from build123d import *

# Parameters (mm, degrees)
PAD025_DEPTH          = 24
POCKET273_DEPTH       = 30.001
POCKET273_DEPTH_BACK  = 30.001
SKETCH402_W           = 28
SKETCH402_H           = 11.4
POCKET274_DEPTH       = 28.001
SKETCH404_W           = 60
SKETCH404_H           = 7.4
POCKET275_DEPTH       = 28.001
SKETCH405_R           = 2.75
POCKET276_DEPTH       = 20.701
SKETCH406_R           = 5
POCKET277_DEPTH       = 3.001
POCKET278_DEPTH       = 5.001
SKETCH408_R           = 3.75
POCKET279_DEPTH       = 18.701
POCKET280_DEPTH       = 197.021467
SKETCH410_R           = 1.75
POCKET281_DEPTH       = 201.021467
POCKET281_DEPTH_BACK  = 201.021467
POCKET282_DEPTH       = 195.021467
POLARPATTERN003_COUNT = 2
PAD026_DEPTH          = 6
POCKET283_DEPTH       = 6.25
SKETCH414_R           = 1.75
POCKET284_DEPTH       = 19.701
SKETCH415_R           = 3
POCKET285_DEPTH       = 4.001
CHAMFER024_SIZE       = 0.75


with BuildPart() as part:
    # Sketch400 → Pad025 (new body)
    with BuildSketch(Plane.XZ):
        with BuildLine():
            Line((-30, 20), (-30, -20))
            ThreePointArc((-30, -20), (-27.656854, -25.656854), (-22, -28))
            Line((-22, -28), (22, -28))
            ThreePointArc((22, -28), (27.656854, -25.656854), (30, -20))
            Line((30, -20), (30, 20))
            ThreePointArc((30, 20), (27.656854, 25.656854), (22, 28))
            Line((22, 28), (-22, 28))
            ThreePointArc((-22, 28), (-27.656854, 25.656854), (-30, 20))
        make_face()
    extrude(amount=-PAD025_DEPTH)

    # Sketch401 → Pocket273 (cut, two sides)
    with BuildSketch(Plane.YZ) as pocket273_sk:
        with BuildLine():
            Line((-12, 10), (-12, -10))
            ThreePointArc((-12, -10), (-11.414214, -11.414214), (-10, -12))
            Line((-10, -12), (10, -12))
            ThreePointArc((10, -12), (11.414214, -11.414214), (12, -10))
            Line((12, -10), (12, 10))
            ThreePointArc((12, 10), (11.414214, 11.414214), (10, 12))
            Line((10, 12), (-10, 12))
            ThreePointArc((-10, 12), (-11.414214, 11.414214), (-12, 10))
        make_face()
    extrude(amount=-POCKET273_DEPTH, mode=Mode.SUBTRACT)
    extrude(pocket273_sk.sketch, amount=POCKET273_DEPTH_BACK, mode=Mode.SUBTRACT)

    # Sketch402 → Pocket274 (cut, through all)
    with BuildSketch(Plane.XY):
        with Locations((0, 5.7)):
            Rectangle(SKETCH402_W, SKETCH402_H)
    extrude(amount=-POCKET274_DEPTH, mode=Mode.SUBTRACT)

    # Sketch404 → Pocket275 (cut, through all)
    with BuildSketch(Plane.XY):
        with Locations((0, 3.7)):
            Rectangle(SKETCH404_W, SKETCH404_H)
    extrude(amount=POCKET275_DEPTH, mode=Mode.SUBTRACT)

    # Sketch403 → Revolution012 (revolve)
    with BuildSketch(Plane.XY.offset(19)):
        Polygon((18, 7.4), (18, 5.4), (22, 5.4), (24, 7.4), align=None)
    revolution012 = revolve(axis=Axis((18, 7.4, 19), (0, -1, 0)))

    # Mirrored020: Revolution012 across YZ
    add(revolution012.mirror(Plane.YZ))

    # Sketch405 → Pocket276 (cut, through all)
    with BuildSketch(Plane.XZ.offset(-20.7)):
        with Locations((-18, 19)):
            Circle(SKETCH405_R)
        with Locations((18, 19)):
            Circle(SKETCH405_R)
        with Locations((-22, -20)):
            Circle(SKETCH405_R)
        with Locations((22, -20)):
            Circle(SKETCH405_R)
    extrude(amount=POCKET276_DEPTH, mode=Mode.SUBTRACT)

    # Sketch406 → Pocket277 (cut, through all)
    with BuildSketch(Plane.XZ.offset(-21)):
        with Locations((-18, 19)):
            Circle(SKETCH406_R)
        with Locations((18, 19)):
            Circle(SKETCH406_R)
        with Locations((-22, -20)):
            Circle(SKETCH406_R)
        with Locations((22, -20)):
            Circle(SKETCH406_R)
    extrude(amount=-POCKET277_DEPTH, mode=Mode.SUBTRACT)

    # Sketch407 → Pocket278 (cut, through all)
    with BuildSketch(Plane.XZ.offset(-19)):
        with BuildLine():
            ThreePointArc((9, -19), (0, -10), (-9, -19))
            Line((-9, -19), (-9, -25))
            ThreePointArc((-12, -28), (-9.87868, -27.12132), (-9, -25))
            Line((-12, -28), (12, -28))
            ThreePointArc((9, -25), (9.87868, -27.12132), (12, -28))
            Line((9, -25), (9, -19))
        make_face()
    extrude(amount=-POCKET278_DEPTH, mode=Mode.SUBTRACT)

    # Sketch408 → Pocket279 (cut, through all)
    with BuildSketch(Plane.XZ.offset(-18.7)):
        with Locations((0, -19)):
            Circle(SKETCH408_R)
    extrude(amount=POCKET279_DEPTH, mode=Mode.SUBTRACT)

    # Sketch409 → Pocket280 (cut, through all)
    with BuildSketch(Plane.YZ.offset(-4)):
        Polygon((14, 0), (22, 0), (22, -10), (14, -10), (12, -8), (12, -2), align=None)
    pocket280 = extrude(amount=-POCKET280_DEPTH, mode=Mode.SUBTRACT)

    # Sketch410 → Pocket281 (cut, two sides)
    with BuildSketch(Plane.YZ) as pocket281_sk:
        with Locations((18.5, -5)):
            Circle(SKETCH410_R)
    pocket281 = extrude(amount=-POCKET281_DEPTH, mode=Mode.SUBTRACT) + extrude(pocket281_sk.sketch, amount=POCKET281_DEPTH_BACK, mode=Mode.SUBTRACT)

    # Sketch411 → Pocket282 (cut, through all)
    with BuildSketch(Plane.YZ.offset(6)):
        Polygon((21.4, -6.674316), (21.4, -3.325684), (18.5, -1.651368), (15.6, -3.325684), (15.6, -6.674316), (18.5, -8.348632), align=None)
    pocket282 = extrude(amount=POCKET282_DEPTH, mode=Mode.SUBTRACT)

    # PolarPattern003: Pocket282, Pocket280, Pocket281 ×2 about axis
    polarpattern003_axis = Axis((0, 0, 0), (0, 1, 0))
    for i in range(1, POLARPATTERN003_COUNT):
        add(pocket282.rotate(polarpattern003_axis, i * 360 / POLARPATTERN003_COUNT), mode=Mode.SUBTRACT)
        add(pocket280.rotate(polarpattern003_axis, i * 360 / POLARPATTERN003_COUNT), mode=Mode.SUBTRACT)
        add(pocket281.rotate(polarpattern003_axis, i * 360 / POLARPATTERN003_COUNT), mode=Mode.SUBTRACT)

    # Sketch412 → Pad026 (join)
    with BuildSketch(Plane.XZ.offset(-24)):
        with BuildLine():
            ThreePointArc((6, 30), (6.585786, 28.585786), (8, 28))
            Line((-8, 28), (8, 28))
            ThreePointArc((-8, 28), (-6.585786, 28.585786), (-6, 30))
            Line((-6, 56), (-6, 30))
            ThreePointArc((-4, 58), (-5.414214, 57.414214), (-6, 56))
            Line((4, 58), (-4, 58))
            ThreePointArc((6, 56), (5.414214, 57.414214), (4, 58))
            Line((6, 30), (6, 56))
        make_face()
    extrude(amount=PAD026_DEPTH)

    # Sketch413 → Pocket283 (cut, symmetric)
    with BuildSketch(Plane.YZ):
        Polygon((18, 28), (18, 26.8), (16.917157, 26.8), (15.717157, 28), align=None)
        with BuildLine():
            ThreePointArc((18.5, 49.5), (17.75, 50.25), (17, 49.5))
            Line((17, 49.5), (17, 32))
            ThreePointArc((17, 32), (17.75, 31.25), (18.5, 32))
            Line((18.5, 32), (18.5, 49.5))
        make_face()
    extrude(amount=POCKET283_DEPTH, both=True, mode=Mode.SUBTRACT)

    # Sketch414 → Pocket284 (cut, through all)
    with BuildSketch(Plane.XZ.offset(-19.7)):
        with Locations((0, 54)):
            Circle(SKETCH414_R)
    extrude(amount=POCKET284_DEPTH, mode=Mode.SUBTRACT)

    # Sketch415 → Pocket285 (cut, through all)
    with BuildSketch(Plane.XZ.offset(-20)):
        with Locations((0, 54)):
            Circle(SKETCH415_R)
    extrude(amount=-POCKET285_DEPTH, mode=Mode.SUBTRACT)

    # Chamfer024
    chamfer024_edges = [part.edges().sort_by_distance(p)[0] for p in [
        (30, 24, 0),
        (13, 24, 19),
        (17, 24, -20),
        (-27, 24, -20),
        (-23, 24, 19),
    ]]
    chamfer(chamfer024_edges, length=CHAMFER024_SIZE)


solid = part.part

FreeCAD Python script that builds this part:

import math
import FreeCAD as App
import Part
import Sketcher
from FreeCAD import Vector
Q = App.Units.Quantity


def edges_at(feature, points):
    """Names of the edges that pass closest to the given points."""
    edges = feature.Shape.Edges
    near = lambda p: min(range(len(edges)), key=lambda i: edges[i].distToShape(Part.Vertex(*p))[0])
    return sorted({f"Edge{near(p) + 1}" for p in points})

doc = App.newDocument("Part")
params = doc.addObject("Spreadsheet::Sheet", "Params")
for row, (alias, value) in enumerate([
    ("sketch1_radius", "8.000001 mm"),
    ("sketch1_width", "44 mm"),
    ("sketch1_height", "40 mm"),
    ("pad1_length", "24 mm"),
    ("sketch2_radius", "1.999999 mm"),
    ("sketch2_width", "20 mm"),
    ("sketch3_width", "28 mm"),
    ("sketch3_height", "11.4 mm"),
    ("sketch4_width", "60 mm"),
    ("sketch4_height", "7.4 mm"),
    ("sketch5_width", "4 mm"),
    ("sketch5_width2", "6 mm"),
    ("sketch5_height", "2 mm"),
    ("revolution_angle", "360 deg"),
    ("sketch6_diameter", "5.5 mm"),
    ("sketch7_diameter", "10 mm"),
    ("sketch8_radius", "9 mm"),
    ("sketch8_radius2", "3.000001 mm"),
    ("sketch8_height", "6 mm"),
    ("sketch9_diameter", "7.5 mm"),
    ("sketch10_width", "8 mm"),
    ("sketch10_height", "6 mm"),
    ("sketch10_height2", "10 mm"),
    ("sketch11_diameter", "3.5 mm"),
    ("sketch13_radius", "1.999999 mm"),
    ("sketch13_width", "8 mm"),
    ("sketch13_height", "26 mm"),
    ("pad2_length", "6 mm"),
    ("sketch14_radius", "0.75 mm"),
    ("sketch14_height", "1.2 mm"),
    ("sketch14_height2", "17.5 mm"),
    ("pocket11_length", "12.5 mm"),
    ("sketch15_diameter", "3.5 mm"),
    ("sketch16_diameter", "6 mm"),
    ("chamfer_size", "0.75 mm"),
], start=1):
    params.set(f"A{row}", alias)
    params.set(f"B{row}", "=" + value)
    params.setAlias(f"B{row}", alias)

body = doc.addObject("PartDesign::Body", "Body")

sketch1 = body.newObject("Sketcher::SketchObject", "Sketch")
sketch1.AttachmentSupport = (doc.getObject("XZ_Plane"), [""])
sketch1.MapMode = "FlatFace"
sketch1.addGeometry([
    Part.LineSegment(Vector(-30, 20, 0), Vector(-30, -20, 0)),
    Part.ArcOfCircle(Part.Circle(Vector(-22, -20, 0), Vector(0, 0, 1), 8), math.radians(-180), math.radians(-90)),
    Part.LineSegment(Vector(-22, -28, 0), Vector(22, -28, 0)),
    Part.ArcOfCircle(Part.Circle(Vector(22, -20, 0), Vector(0, 0, 1), 8), math.radians(-90), math.radians(0)),
    Part.LineSegment(Vector(30, -20, 0), Vector(30, 20, 0)),
    Part.ArcOfCircle(Part.Circle(Vector(22, 20, 0), Vector(0, 0, 1), 8), math.radians(0), math.radians(90)),
    Part.LineSegment(Vector(22, 28, 0), Vector(-22, 28, 0)),
    Part.ArcOfCircle(Part.Circle(Vector(-22, 20, 0), Vector(0, 0, 1), 8), math.radians(90), math.radians(180)),
], False)
sketch1.addConstraint([
    Sketcher.Constraint("Tangent", 0, 2, 1, 1),
    Sketcher.Constraint("Tangent", 1, 2, 2, 1),
    Sketcher.Constraint("Tangent", 2, 2, 3, 1),
    Sketcher.Constraint("Tangent", 3, 2, 4, 1),
    Sketcher.Constraint("Tangent", 4, 2, 5, 1),
    Sketcher.Constraint("Tangent", 5, 2, 6, 1),
    Sketcher.Constraint("Tangent", 6, 2, 7, 1),
    Sketcher.Constraint("Tangent", 7, 2, 0, 1),
    Sketcher.Constraint("Vertical", 0),
    Sketcher.Constraint("Horizontal", 2),
    Sketcher.Constraint("Vertical", 4),
    Sketcher.Constraint("Horizontal", 6),
    Sketcher.Constraint("Equal", 1, 3),
    Sketcher.Constraint("Equal", 3, 5),
    Sketcher.Constraint("Equal", 5, 7),
    Sketcher.Constraint("Symmetric", 1, 3, 5, 3, -1, 1),
    Sketcher.Constraint("Radius", 1, Q("8.000001 mm")),
    Sketcher.Constraint("DistanceX", 2, 1, 2, 2, Q("44 mm")),
    Sketcher.Constraint("DistanceY", 0, 2, 0, 1, Q("40 mm")),
])
sketch1.setExpression("Constraints[16]", "Params.sketch1_radius")
sketch1.setExpression("Constraints[17]", "Params.sketch1_width")
sketch1.setExpression("Constraints[18]", "Params.sketch1_height")
pad1 = body.newObject("PartDesign::Pad", "Pad")
pad1.Profile = sketch1
pad1.setExpression("Length", "Params.pad1_length")
pad1.Reversed = True

sketch2 = body.newObject("Sketcher::SketchObject", "Sketch001")
sketch2.AttachmentSupport = (doc.getObject("YZ_Plane"), [""])
sketch2.MapMode = "FlatFace"
sketch2.addGeometry([
    Part.LineSegment(Vector(-12, 10, 0), Vector(-12, -10, 0)),
    Part.ArcOfCircle(Part.Circle(Vector(-10, -10, 0), Vector(0, 0, 1), 2), math.radians(180), math.radians(270)),
    Part.LineSegment(Vector(-10, -12, 0), Vector(10, -12, 0)),
    Part.ArcOfCircle(Part.Circle(Vector(10, -10, 0), Vector(0, 0, 1), 2), math.radians(-90), math.radians(0)),
    Part.LineSegment(Vector(12, -10, 0), Vector(12, 10, 0)),
    Part.ArcOfCircle(Part.Circle(Vector(10, 10, 0), Vector(0, 0, 1), 2), math.radians(0), math.radians(90)),
    Part.LineSegment(Vector(10, 12, 0), Vector(-10, 12, 0)),
    Part.ArcOfCircle(Part.Circle(Vector(-10, 10, 0), Vector(0, 0, 1), 2), math.radians(90), math.radians(180)),
], False)
sketch2.addConstraint([
    Sketcher.Constraint("Tangent", 0, 2, 1, 1),
    Sketcher.Constraint("Tangent", 1, 2, 2, 1),
    Sketcher.Constraint("Tangent", 2, 2, 3, 1),
    Sketcher.Constraint("Tangent", 3, 2, 4, 1),
    Sketcher.Constraint("Tangent", 4, 2, 5, 1),
    Sketcher.Constraint("Tangent", 5, 2, 6, 1),
    Sketcher.Constraint("Tangent", 6, 2, 7, 1),
    Sketcher.Constraint("Tangent", 7, 2, 0, 1),
    Sketcher.Constraint("Vertical", 0),
    Sketcher.Constraint("Horizontal", 2),
    Sketcher.Constraint("Vertical", 4),
    Sketcher.Constraint("Horizontal", 6),
    Sketcher.Constraint("Equal", 1, 3),
    Sketcher.Constraint("Equal", 3, 5),
    Sketcher.Constraint("Equal", 5, 7),
    Sketcher.Constraint("Symmetric", 1, 3, 5, 3, -1, 1),
    Sketcher.Constraint("Equal", 6, 0),
    Sketcher.Constraint("Radius", 1, Q("1.999999 mm")),
    Sketcher.Constraint("DistanceX", 2, 1, 2, 2, Q("20 mm")),
])
sketch2.setExpression("Constraints[17]", "Params.sketch2_radius")
sketch2.setExpression("Constraints[18]", "Params.sketch2_width")
pocket1 = body.newObject("PartDesign::Pocket", "Pocket")
pocket1.Profile = sketch2
pocket1.Type = "ThroughAll"
pocket1.Midplane = True

sketch3 = body.newObject("Sketcher::SketchObject", "Sketch002")
sketch3.AttachmentSupport = (doc.getObject("XY_Plane"), [""])
sketch3.MapMode = "FlatFace"
sketch3.addGeometry([
    Part.LineSegment(Vector(-14, 11, 0), Vector(-14, 0, 0)),
    Part.LineSegment(Vector(-14, 0, 0), Vector(14, 0, 0)),
    Part.LineSegment(Vector(14, 0, 0), Vector(14, 11, 0)),
    Part.LineSegment(Vector(14, 11, 0), Vector(-14, 11, 0)),
], False)
sketch3.addConstraint([
    Sketcher.Constraint("Coincident", 0, 2, 1, 1),
    Sketcher.Constraint("Coincident", 1, 2, 2, 1),
    Sketcher.Constraint("Coincident", 2, 2, 3, 1),
    Sketcher.Constraint("Coincident", 3, 2, 0, 1),
    Sketcher.Constraint("Vertical", 0),
    Sketcher.Constraint("Horizontal", 1),
    Sketcher.Constraint("Vertical", 2),
    Sketcher.Constraint("Horizontal", 3),
    Sketcher.Constraint("Symmetric", 0, 2, 1, 2, -1, 1),
    Sketcher.Constraint("DistanceX", 1, 1, 1, 2, Q("28 mm")),
    Sketcher.Constraint("DistanceY", 0, 2, 0, 1, Q("11.4 mm")),
])
sketch3.setExpression("Constraints[9]", "Params.sketch3_width")
sketch3.setExpression("Constraints[10]", "Params.sketch3_height")
pocket2 = body.newObject("PartDesign::Pocket", "Pocket001")
pocket2.Profile = sketch3
pocket2.Type = "ThroughAll"

sketch4 = body.newObject("Sketcher::SketchObject", "Sketch003")
sketch4.AttachmentSupport = (doc.getObject("XY_Plane"), [""])
sketch4.MapMode = "FlatFace"
sketch4.addGeometry([
    Part.LineSegment(Vector(-30, 7, 0), Vector(-30, 0, 0)),
    Part.LineSegment(Vector(-30, 0, 0), Vector(30, 0, 0)),
    Part.LineSegment(Vector(30, 0, 0), Vector(30, 7, 0)),
    Part.LineSegment(Vector(30, 7, 0), Vector(-30, 7, 0)),
], False)
sketch4.addConstraint([
    Sketcher.Constraint("Coincident", 0, 2, 1, 1),
    Sketcher.Constraint("Coincident", 1, 2, 2, 1),
    Sketcher.Constraint("Coincident", 2, 2, 3, 1),
    Sketcher.Constraint("Coincident", 3, 2, 0, 1),
    Sketcher.Constraint("Vertical", 0),
    Sketcher.Constraint("Horizontal", 1),
    Sketcher.Constraint("Vertical", 2),
    Sketcher.Constraint("Horizontal", 3),
    Sketcher.Constraint("Symmetric", 0, 2, 1, 2, -1, 1),
    Sketcher.Constraint("DistanceX", 1, 1, 1, 2, Q("60 mm")),
    Sketcher.Constraint("DistanceY", 0, 2, 0, 1, Q("7.4 mm")),
])
sketch4.setExpression("Constraints[9]", "Params.sketch4_width")
sketch4.setExpression("Constraints[10]", "Params.sketch4_height")
pocket3 = body.newObject("PartDesign::Pocket", "Pocket002")
pocket3.Profile = sketch4
pocket3.Type = "ThroughAll"
pocket3.Reversed = True

sketch5 = body.newObject("Sketcher::SketchObject", "Sketch004")
sketch5.AttachmentSupport = (doc.getObject("XY_Plane"), [""])
sketch5.MapMode = "FlatFace"
sketch5.AttachmentOffset = App.Placement(Vector(0, 0, 19), App.Rotation())
sketch5.addGeometry([
    Part.LineSegment(Vector(18, 7.4, 0), Vector(18, 5.4, 0)),
    Part.LineSegment(Vector(18, 5.4, 0), Vector(22, 5.4, 0)),
    Part.LineSegment(Vector(22, 5.4, 0), Vector(24, 7.4, 0)),
    Part.LineSegment(Vector(24, 7.4, 0), Vector(18, 7.4, 0)),
], False)
sketch5.addGeometry(Part.LineSegment(Vector(18, 7.4, 0), Vector(18, 5.4, 0)), True)
sketch5.addConstraint([
    Sketcher.Constraint("Coincident", 0, 2, 1, 1),
    Sketcher.Constraint("Coincident", 1, 2, 2, 1),
    Sketcher.Constraint("Coincident", 2, 2, 3, 1),
    Sketcher.Constraint("Coincident", 3, 2, 0, 1),
    Sketcher.Constraint("Vertical", 0),
    Sketcher.Constraint("Horizontal", 1),
    Sketcher.Constraint("Horizontal", 3),
    Sketcher.Constraint("Vertical", 4),
    Sketcher.Constraint("Coincident", 4, 1, 3, 2),
    Sketcher.Constraint("Horizontal", 1, 2, 4, 2),
    Sketcher.Constraint("DistanceX", 1, 1, 1, 2, Q("4 mm")),
    Sketcher.Constraint("DistanceX", 3, 2, 3, 1, Q("6 mm")),
    Sketcher.Constraint("DistanceY", 0, 2, 0, 1, Q("2 mm")),
    Sketcher.Constraint("DistanceX", -1, 1, 0, 2, Q("18 mm")),
    Sketcher.Constraint("DistanceY", -1, 1, 0, 2, Q("5.4 mm")),
])
sketch5.setExpression("Constraints[10]", "Params.sketch5_width")
sketch5.setExpression("Constraints[11]", "Params.sketch5_width2")
sketch5.setExpression("Constraints[12]", "Params.sketch5_height")
revolution = body.newObject("PartDesign::Revolution", "Revolution")
revolution.Profile = sketch5
revolution.ReferenceAxis = (sketch5, ["Axis0"])
revolution.setExpression("Angle", "Params.revolution_angle")
doc.recompute()

mirrored = body.newObject("PartDesign::Mirrored", "Mirrored")
mirrored.Originals = [revolution]
mirrored.MirrorPlane = (doc.getObject("YZ_Plane"), [""])
body.Tip = mirrored

sketch6 = body.newObject("Sketcher::SketchObject", "Sketch005")
sketch6.AttachmentSupport = (doc.getObject("XZ_Plane"), [""])
sketch6.MapMode = "FlatFace"
sketch6.AttachmentOffset = App.Placement(Vector(0, 0, -20.7), App.Rotation())
sketch6.addGeometry([
    Part.Circle(Vector(-18, 19, 0), Vector(0, 0, 1), 2.8),
    Part.Circle(Vector(18, 19, 0), Vector(0, 0, 1), 2.8),
    Part.Circle(Vector(-22, -20, 0), Vector(0, 0, 1), 2.8),
    Part.Circle(Vector(22, -20, 0), Vector(0, 0, 1), 2.8),
], False)
sketch6.addConstraint([
    Sketcher.Constraint("Equal", 0, 1),
    Sketcher.Constraint("Equal", 1, 2),
    Sketcher.Constraint("Equal", 2, 3),
    Sketcher.Constraint("Symmetric", 0, 3, 1, 3, -2),
    Sketcher.Constraint("Symmetric", 2, 3, 3, 3, -2),
    Sketcher.Constraint("Diameter", 0, Q("5.5 mm")),
    Sketcher.Constraint("DistanceX", 0, 3, -1, 1, Q("18 mm")),
    Sketcher.Constraint("DistanceY", -1, 1, 0, 3, Q("19 mm")),
    Sketcher.Constraint("DistanceX", 2, 3, -1, 1, Q("22 mm")),
    Sketcher.Constraint("DistanceY", 2, 3, -1, 1, Q("20 mm")),
])
sketch6.setExpression("Constraints[5]", "Params.sketch6_diameter")
pocket4 = body.newObject("PartDesign::Pocket", "Pocket003")
pocket4.Profile = sketch6
pocket4.Type = "ThroughAll"
pocket4.Reversed = True

sketch7 = body.newObject("Sketcher::SketchObject", "Sketch006")
sketch7.AttachmentSupport = (doc.getObject("XZ_Plane"), [""])
sketch7.MapMode = "FlatFace"
sketch7.AttachmentOffset = App.Placement(Vector(0, 0, -21), App.Rotation())
sketch7.addGeometry([
    Part.Circle(Vector(-18, 19, 0), Vector(0, 0, 1), 5),
    Part.Circle(Vector(18, 19, 0), Vector(0, 0, 1), 5),
    Part.Circle(Vector(-22, -20, 0), Vector(0, 0, 1), 5),
    Part.Circle(Vector(22, -20, 0), Vector(0, 0, 1), 5),
], False)
sketch7.addConstraint([
    Sketcher.Constraint("Equal", 0, 1),
    Sketcher.Constraint("Equal", 1, 2),
    Sketcher.Constraint("Equal", 2, 3),
    Sketcher.Constraint("Symmetric", 0, 3, 1, 3, -2),
    Sketcher.Constraint("Symmetric", 2, 3, 3, 3, -2),
    Sketcher.Constraint("Diameter", 0, Q("10 mm")),
    Sketcher.Constraint("DistanceX", 0, 3, -1, 1, Q("18 mm")),
    Sketcher.Constraint("DistanceY", -1, 1, 0, 3, Q("19 mm")),
    Sketcher.Constraint("DistanceX", 2, 3, -1, 1, Q("22 mm")),
    Sketcher.Constraint("DistanceY", 2, 3, -1, 1, Q("20 mm")),
])
sketch7.setExpression("Constraints[5]", "Params.sketch7_diameter")
pocket5 = body.newObject("PartDesign::Pocket", "Pocket004")
pocket5.Profile = sketch7
pocket5.Type = "ThroughAll"

sketch8 = body.newObject("Sketcher::SketchObject", "Sketch007")
sketch8.AttachmentSupport = (doc.getObject("XZ_Plane"), [""])
sketch8.MapMode = "FlatFace"
sketch8.AttachmentOffset = App.Placement(Vector(0, 0, -19), App.Rotation())
sketch8.addGeometry([
    Part.ArcOfCircle(Part.Circle(Vector(0, -19, 0), Vector(0, 0, 1), 9), math.radians(0), math.radians(180)),
    Part.LineSegment(Vector(-9, -19, 0), Vector(-9, -25, 0)),
    Part.ArcOfCircle(Part.Circle(Vector(-12, -25, 0), Vector(0, 0, 1), 3), math.radians(-90), math.radians(0)),
    Part.LineSegment(Vector(-12, -28, 0), Vector(12, -28, 0)),
    Part.ArcOfCircle(Part.Circle(Vector(12, -25, 0), Vector(0, 0, 1), 3), math.radians(-180), math.radians(-90)),
    Part.LineSegment(Vector(9, -25, 0), Vector(9, -19, 0)),
], False)
sketch8.addConstraint([
    Sketcher.Constraint("Tangent", 0, 2, 1, 1),
    Sketcher.Constraint("Tangent", 1, 2, 2, 2),
    Sketcher.Constraint("Tangent", 2, 1, 3, 1),
    Sketcher.Constraint("Tangent", 3, 2, 4, 2),
    Sketcher.Constraint("Tangent", 4, 1, 5, 1),
    Sketcher.Constraint("Tangent", 5, 2, 0, 1),
    Sketcher.Constraint("Vertical", 1),
    Sketcher.Constraint("Horizontal", 3),
    Sketcher.Constraint("Vertical", 5),
    Sketcher.Constraint("Equal", 2, 4),
    Sketcher.Constraint("PointOnObject", 0, 3, -2),
    Sketcher.Constraint("Radius", 0, Q("9 mm")),
    Sketcher.Constraint("Radius", 2, Q("3.000001 mm")),
    Sketcher.Constraint("DistanceY", 1, 2, 1, 1, Q("6 mm")),
    Sketcher.Constraint("DistanceY", 0, 3, -1, 1, Q("19 mm")),
])
sketch8.setExpression("Constraints[11]", "Params.sketch8_radius")
sketch8.setExpression("Constraints[12]", "Params.sketch8_radius2")
sketch8.setExpression("Constraints[13]", "Params.sketch8_height")
pocket6 = body.newObject("PartDesign::Pocket", "Pocket005")
pocket6.Profile = sketch8
pocket6.Type = "ThroughAll"

sketch9 = body.newObject("Sketcher::SketchObject", "Sketch008")
sketch9.AttachmentSupport = (doc.getObject("XZ_Plane"), [""])
sketch9.MapMode = "FlatFace"
sketch9.AttachmentOffset = App.Placement(Vector(0, 0, -18.7), App.Rotation())
sketch9.addGeometry(Part.Circle(Vector(0, -19, 0), Vector(0, 0, 1), 3.8), False)
sketch9.addConstraint([
    Sketcher.Constraint("PointOnObject", 0, 3, -2),
    Sketcher.Constraint("Diameter", 0, Q("7.5 mm")),
    Sketcher.Constraint("DistanceY", 0, 3, -1, 1, Q("19 mm")),
])
sketch9.setExpression("Constraints[1]", "Params.sketch9_diameter")
pocket7 = body.newObject("PartDesign::Pocket", "Pocket006")
pocket7.Profile = sketch9
pocket7.Type = "ThroughAll"
pocket7.Reversed = True

sketch10 = body.newObject("Sketcher::SketchObject", "Sketch009")
sketch10.AttachmentSupport = (doc.getObject("YZ_Plane"), [""])
sketch10.MapMode = "FlatFace"
sketch10.AttachmentOffset = App.Placement(Vector(0, 0, -4), App.Rotation())
sketch10.addGeometry([
    Part.LineSegment(Vector(22, 0, 0), Vector(14, 0, 0)),
    Part.LineSegment(Vector(14, 0, 0), Vector(12, -2, 0)),
    Part.LineSegment(Vector(12, -2, 0), Vector(12, -8, 0)),
    Part.LineSegment(Vector(12, -8, 0), Vector(14, -10, 0)),
    Part.LineSegment(Vector(14, -10, 0), Vector(22, -10, 0)),
    Part.LineSegment(Vector(22, -10, 0), Vector(22, 0, 0)),
], False)
sketch10.addConstraint([
    Sketcher.Constraint("Coincident", 0, 2, 1, 1),
    Sketcher.Constraint("Coincident", 1, 2, 2, 1),
    Sketcher.Constraint("Coincident", 2, 2, 3, 1),
    Sketcher.Constraint("Coincident", 3, 2, 4, 1),
    Sketcher.Constraint("Coincident", 4, 2, 5, 1),
    Sketcher.Constraint("Coincident", 5, 2, 0, 1),
    Sketcher.Constraint("Horizontal", 0),
    Sketcher.Constraint("Vertical", 2),
    Sketcher.Constraint("Horizontal", 4),
    Sketcher.Constraint("Vertical", 5),
    Sketcher.Constraint("PointOnObject", 0, 2, -1),
    Sketcher.Constraint("Perpendicular", 1, 3),
    Sketcher.Constraint("Vertical", 0, 2, 3, 2),
    Sketcher.Constraint("Equal", 1, 3),
    Sketcher.Constraint("DistanceX", 0, 2, 0, 1, Q("8 mm")),
    Sketcher.Constraint("DistanceY", 2, 2, 2, 1, Q("6 mm")),
    Sketcher.Constraint("DistanceY", 5, 1, 5, 2, Q("10 mm")),
    Sketcher.Constraint("DistanceX", -1, 1, 0, 2, Q("14 mm")),
])
sketch10.setExpression("Constraints[14]", "Params.sketch10_width")
sketch10.setExpression("Constraints[15]", "Params.sketch10_height")
sketch10.setExpression("Constraints[16]", "Params.sketch10_height2")
pocket8 = body.newObject("PartDesign::Pocket", "Pocket007")
pocket8.Profile = sketch10
pocket8.Type = "ThroughAll"

sketch11 = body.newObject("Sketcher::SketchObject", "Sketch010")
sketch11.AttachmentSupport = (doc.getObject("YZ_Plane"), [""])
sketch11.MapMode = "FlatFace"
sketch11.addGeometry(Part.Circle(Vector(18.5, -5, 0), Vector(0, 0, 1), 1.8), False)
sketch11.addConstraint([
    Sketcher.Constraint("Diameter", 0, Q("3.5 mm")),
    Sketcher.Constraint("DistanceY", 0, 3, -1, 1, Q("5 mm")),
    Sketcher.Constraint("DistanceX", -1, 1, 0, 3, Q("18.5 mm")),
])
sketch11.setExpression("Constraints[0]", "Params.sketch11_diameter")
pocket9 = body.newObject("PartDesign::Pocket", "Pocket008")
pocket9.Profile = sketch11
pocket9.Type = "ThroughAll"
pocket9.Midplane = True

sketch12 = body.newObject("Sketcher::SketchObject", "Sketch011")
sketch12.AttachmentSupport = (doc.getObject("YZ_Plane"), [""])
sketch12.MapMode = "FlatFace"
sketch12.AttachmentOffset = App.Placement(Vector(0, 0, 6), App.Rotation())
sketch12.addGeometry([
    Part.LineSegment(Vector(21.4, -6.7, 0), Vector(21.4, -3.3, 0)),
    Part.LineSegment(Vector(21.4, -3.3, 0), Vector(18.5, -1.7, 0)),
    Part.LineSegment(Vector(18.5, -1.7, 0), Vector(15.6, -3.3, 0)),
    Part.LineSegment(Vector(15.6, -3.3, 0), Vector(15.6, -6.7, 0)),
    Part.LineSegment(Vector(15.6, -6.7, 0), Vector(18.5, -8.3, 0)),
    Part.LineSegment(Vector(18.5, -8.3, 0), Vector(21.4, -6.7, 0)),
], False)
sketch12.addConstraint([
    Sketcher.Constraint("Coincident", 0, 2, 1, 1),
    Sketcher.Constraint("Coincident", 1, 2, 2, 1),
    Sketcher.Constraint("Coincident", 2, 2, 3, 1),
    Sketcher.Constraint("Coincident", 3, 2, 4, 1),
    Sketcher.Constraint("Coincident", 4, 2, 5, 1),
    Sketcher.Constraint("Coincident", 5, 2, 0, 1),
    Sketcher.Constraint("Vertical", 0),
    Sketcher.Constraint("Vertical", 3),
    Sketcher.Constraint("Parallel", 1, 4),
    Sketcher.Constraint("Parallel", 2, 5),
    Sketcher.Constraint("Horizontal", 0, 2, 2, 2),
    Sketcher.Constraint("Horizontal", 3, 2, 5, 2),
    Sketcher.Constraint("Vertical", 1, 2, 4, 2),
    Sketcher.Constraint("Angle", 1, Q("149.999997 deg")),
    Sketcher.Constraint("DistanceX", -1, 1, 0, 2, Q("21.4 mm")),
    Sketcher.Constraint("DistanceX", -1, 1, 1, 2, Q("18.5 mm")),
    Sketcher.Constraint("DistanceY", 0, 1, 0, 2, Q("3.348632 mm")),
    Sketcher.Constraint("DistanceY", 0, 2, -1, 1, Q("3.325684 mm")),
])
pocket10 = body.newObject("PartDesign::Pocket", "Pocket009")
pocket10.Profile = sketch12
pocket10.Type = "ThroughAll"
pocket10.Reversed = True
doc.recompute()

polarpattern = body.newObject("PartDesign::PolarPattern", "PolarPattern")
polarpattern.Originals = [pocket10, pocket8, pocket9]
polarpattern.Axis = (doc.getObject("Y_Axis"), [""])
polarpattern.Angle = 360
polarpattern.Occurrences = 2
body.Tip = polarpattern

sketch13 = body.newObject("Sketcher::SketchObject", "Sketch012")
sketch13.AttachmentSupport = (doc.getObject("XZ_Plane"), [""])
sketch13.MapMode = "FlatFace"
sketch13.AttachmentOffset = App.Placement(Vector(0, 0, -24), App.Rotation())
sketch13.addGeometry([
    Part.ArcOfCircle(Part.Circle(Vector(8, 30, 0), Vector(0, 0, 1), 2), math.radians(180), math.radians(270)),
    Part.LineSegment(Vector(6, 30, 0), Vector(6, 56, 0)),
    Part.ArcOfCircle(Part.Circle(Vector(4, 56, 0), Vector(0, 0, 1), 2), math.radians(0), math.radians(90)),
    Part.LineSegment(Vector(4, 58, 0), Vector(-4, 58, 0)),
    Part.ArcOfCircle(Part.Circle(Vector(-4, 56, 0), Vector(0, 0, 1), 2), math.radians(90), math.radians(180)),
    Part.LineSegment(Vector(-6, 56, 0), Vector(-6, 30, 0)),
    Part.ArcOfCircle(Part.Circle(Vector(-8, 30, 0), Vector(0, 0, 1), 2), math.radians(-90), math.radians(0)),
    Part.LineSegment(Vector(-8, 28, 0), Vector(8, 28, 0)),
], False)
sketch13.addConstraint([
    Sketcher.Constraint("Tangent", 0, 1, 1, 1),
    Sketcher.Constraint("Tangent", 1, 2, 2, 1),
    Sketcher.Constraint("Tangent", 2, 2, 3, 1),
    Sketcher.Constraint("Tangent", 3, 2, 4, 1),
    Sketcher.Constraint("Tangent", 4, 2, 5, 1),
    Sketcher.Constraint("Tangent", 5, 2, 6, 2),
    Sketcher.Constraint("Tangent", 6, 1, 7, 1),
    Sketcher.Constraint("Tangent", 7, 2, 0, 2),
    Sketcher.Constraint("Vertical", 1),
    Sketcher.Constraint("Horizontal", 3),
    Sketcher.Constraint("Vertical", 5),
    Sketcher.Constraint("Horizontal", 7),
    Sketcher.Constraint("Equal", 0, 2),
    Sketcher.Constraint("Equal", 2, 4),
    Sketcher.Constraint("Equal", 4, 6),
    Sketcher.Constraint("Radius", 0, Q("1.999999 mm")),
    Sketcher.Constraint("DistanceX", 3, 2, 3, 1, Q("8 mm")),
    Sketcher.Constraint("DistanceY", 1, 1, 1, 2, Q("26 mm")),
    Sketcher.Constraint("DistanceX", -1, 1, 0, 3, Q("7.999999 mm")),
    Sketcher.Constraint("DistanceY", -1, 1, 0, 3, Q("29.999999 mm")),
])
sketch13.setExpression("Constraints[15]", "Params.sketch13_radius")
sketch13.setExpression("Constraints[16]", "Params.sketch13_width")
sketch13.setExpression("Constraints[17]", "Params.sketch13_height")
pad2 = body.newObject("PartDesign::Pad", "Pad001")
pad2.Profile = sketch13
pad2.setExpression("Length", "Params.pad2_length")

sketch14 = body.newObject("Sketcher::SketchObject", "Sketch013")
sketch14.AttachmentSupport = (doc.getObject("YZ_Plane"), [""])
sketch14.MapMode = "FlatFace"
sketch14.addGeometry([
    Part.LineSegment(Vector(18, 26.8, 0), Vector(18, 28, 0)),
    Part.LineSegment(Vector(18, 28, 0), Vector(15.7, 28, 0)),
    Part.LineSegment(Vector(15.7, 28, 0), Vector(16.9, 26.8, 0)),
    Part.LineSegment(Vector(16.9, 26.8, 0), Vector(18, 26.8, 0)),
    Part.ArcOfCircle(Part.Circle(Vector(17.8, 49.5, 0), Vector(0, 0, 1), 0.8), math.radians(0), math.radians(180)),
    Part.LineSegment(Vector(17, 49.5, 0), Vector(17, 32, 0)),
    Part.ArcOfCircle(Part.Circle(Vector(17.8, 32, 0), Vector(0, 0, 1), 0.8), math.radians(180), math.radians(360)),
    Part.LineSegment(Vector(18.5, 32, 0), Vector(18.5, 49.5, 0)),
], False)
sketch14.addConstraint([
    Sketcher.Constraint("Coincident", 0, 2, 1, 1),
    Sketcher.Constraint("Coincident", 1, 2, 2, 1),
    Sketcher.Constraint("Coincident", 2, 2, 3, 1),
    Sketcher.Constraint("Coincident", 3, 2, 0, 1),
    Sketcher.Constraint("Tangent", 4, 2, 5, 1),
    Sketcher.Constraint("Tangent", 5, 2, 6, 1),
    Sketcher.Constraint("Tangent", 6, 2, 7, 1),
    Sketcher.Constraint("Tangent", 7, 2, 4, 1),
    Sketcher.Constraint("Vertical", 0),
    Sketcher.Constraint("Horizontal", 1),
    Sketcher.Constraint("Horizontal", 3),
    Sketcher.Constraint("Vertical", 5),
    Sketcher.Constraint("Vertical", 7),
    Sketcher.Constraint("Angle", 2, Q("-45 deg")),
    Sketcher.Constraint("Radius", 4, Q("0.75 mm")),
    Sketcher.Constraint("DistanceY", 0, 1, 0, 2, Q("1.2 mm")),
    Sketcher.Constraint("DistanceY", 5, 2, 5, 1, Q("17.5 mm")),
    Sketcher.Constraint("DistanceY", -1, 1, 6, 3, Q("32 mm")),
    Sketcher.Constraint("DistanceX", -1, 1, 0, 2, Q("18 mm")),
    Sketcher.Constraint("DistanceY", -1, 1, 0, 2, Q("28 mm")),
    Sketcher.Constraint("DistanceX", -1, 1, 4, 2, Q("17 mm")),
    Sketcher.Constraint("DistanceX", 1, 2, 1, 1, Q("2.282843 mm")),
])
sketch14.setExpression("Constraints[14]", "Params.sketch14_radius")
sketch14.setExpression("Constraints[15]", "Params.sketch14_height")
sketch14.setExpression("Constraints[16]", "Params.sketch14_height2")
pocket11 = body.newObject("PartDesign::Pocket", "Pocket010")
pocket11.Profile = sketch14
pocket11.setExpression("Length", "Params.pocket11_length")
pocket11.Midplane = True

sketch15 = body.newObject("Sketcher::SketchObject", "Sketch014")
sketch15.AttachmentSupport = (doc.getObject("XZ_Plane"), [""])
sketch15.MapMode = "FlatFace"
sketch15.AttachmentOffset = App.Placement(Vector(0, 0, -19.7), App.Rotation())
sketch15.addGeometry(Part.Circle(Vector(0, 54, 0), Vector(0, 0, 1), 1.8), False)
sketch15.addConstraint([
    Sketcher.Constraint("PointOnObject", 0, 3, -2),
    Sketcher.Constraint("Diameter", 0, Q("3.5 mm")),
    Sketcher.Constraint("DistanceY", -1, 1, 0, 3, Q("54 mm")),
])
sketch15.setExpression("Constraints[1]", "Params.sketch15_diameter")
pocket12 = body.newObject("PartDesign::Pocket", "Pocket011")
pocket12.Profile = sketch15
pocket12.Type = "ThroughAll"
pocket12.Reversed = True

sketch16 = body.newObject("Sketcher::SketchObject", "Sketch015")
sketch16.AttachmentSupport = (doc.getObject("XZ_Plane"), [""])
sketch16.MapMode = "FlatFace"
sketch16.AttachmentOffset = App.Placement(Vector(0, 0, -20), App.Rotation())
sketch16.addGeometry(Part.Circle(Vector(0, 54, 0), Vector(0, 0, 1), 3), False)
sketch16.addConstraint([
    Sketcher.Constraint("PointOnObject", 0, 3, -2),
    Sketcher.Constraint("Diameter", 0, Q("6 mm")),
    Sketcher.Constraint("DistanceY", -1, 1, 0, 3, Q("54 mm")),
])
sketch16.setExpression("Constraints[1]", "Params.sketch16_diameter")
pocket13 = body.newObject("PartDesign::Pocket", "Pocket012")
pocket13.Profile = sketch16
pocket13.Type = "ThroughAll"
doc.recompute()

chamfer = body.newObject("PartDesign::Chamfer", "Chamfer")
chamfer.Base = (pocket13, edges_at(pocket13, [
    (30, 24, 0),
    (13, 24, 19),
    (17, 24, -20),
    (-27, 24, -20),
    (-23, 24, 19),
]))
chamfer.setExpression("Size", "Params.chamfer_size")

doc.recompute()
